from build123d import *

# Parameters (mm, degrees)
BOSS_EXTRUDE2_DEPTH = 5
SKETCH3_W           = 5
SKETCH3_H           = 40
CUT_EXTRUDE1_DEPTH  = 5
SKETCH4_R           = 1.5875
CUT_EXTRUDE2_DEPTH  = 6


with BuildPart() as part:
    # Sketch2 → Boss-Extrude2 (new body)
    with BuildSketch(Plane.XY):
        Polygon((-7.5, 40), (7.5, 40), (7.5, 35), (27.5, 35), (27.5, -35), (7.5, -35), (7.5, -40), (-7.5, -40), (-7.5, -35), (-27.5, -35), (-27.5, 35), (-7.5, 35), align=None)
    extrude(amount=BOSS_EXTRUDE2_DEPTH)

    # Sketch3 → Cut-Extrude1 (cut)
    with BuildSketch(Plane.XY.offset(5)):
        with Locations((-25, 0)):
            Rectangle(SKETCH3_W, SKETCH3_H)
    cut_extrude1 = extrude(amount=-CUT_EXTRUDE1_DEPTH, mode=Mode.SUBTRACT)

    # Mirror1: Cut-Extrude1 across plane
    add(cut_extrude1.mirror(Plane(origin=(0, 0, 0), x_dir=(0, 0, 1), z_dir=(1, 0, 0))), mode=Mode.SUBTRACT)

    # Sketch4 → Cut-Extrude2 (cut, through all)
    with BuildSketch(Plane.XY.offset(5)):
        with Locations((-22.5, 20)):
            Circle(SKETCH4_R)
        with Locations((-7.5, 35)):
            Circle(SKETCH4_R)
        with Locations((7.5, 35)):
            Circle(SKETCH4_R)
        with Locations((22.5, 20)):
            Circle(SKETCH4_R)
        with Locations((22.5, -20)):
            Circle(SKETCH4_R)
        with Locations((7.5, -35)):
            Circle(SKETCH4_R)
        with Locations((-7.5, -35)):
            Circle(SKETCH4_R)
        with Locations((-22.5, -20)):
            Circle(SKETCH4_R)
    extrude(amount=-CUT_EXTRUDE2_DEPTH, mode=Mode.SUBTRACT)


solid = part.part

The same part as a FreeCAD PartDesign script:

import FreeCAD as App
import Part
import Sketcher
from FreeCAD import Vector
Q = App.Units.Quantity


def add_polygon(sketch, points):
    """Adds a closed chain of lines whose ends are joined by coincident constraints."""
    first, n = sketch.GeometryCount, len(points)
    for a, b in zip(points, points[1:] + points[:1]):
        sketch.addGeometry(Part.LineSegment(App.Vector(*a, 0), App.Vector(*b, 0)), False)
    for i in range(n):
        sketch.addConstraint(Sketcher.Constraint("Coincident", first + i, 2, first + (i + 1) % n, 1))

doc = App.newDocument("Part")
body = doc.addObject("PartDesign::Body", "Body")

# Sketch on XY plane
sketch1 = doc.addObject("Sketcher::SketchObject", "Sketch")
body.addObject(sketch1)
sketch1.AttachmentSupport = (doc.XY_Plane, [""])
sketch1.MapMode = "FlatFace"
add_polygon(sketch1, [(7.5, 40), (-7.5, 40), (-7.5, 35), (-27.5, 35), (-27.5, -35), (-7.5, -35), (-7.5, -40), (7.5, -40), (7.5, -35), (27.5, -35), (27.5, 35), (7.5, 35)])  # lines 0-11
sketch1.addConstraint(Sketcher.Constraint("Horizontal", 0))
sketch1.addConstraint(Sketcher.Constraint("Vertical", 1))
sketch1.addConstraint(Sketcher.Constraint("Horizontal", 2))
sketch1.addConstraint(Sketcher.Constraint("Vertical", 3))
sketch1.addConstraint(Sketcher.Constraint("Horizontal", 4))
sketch1.addConstraint(Sketcher.Constraint("Vertical", 5))
sketch1.addConstraint(Sketcher.Constraint("Horizontal", 6))
sketch1.addConstraint(Sketcher.Constraint("Vertical", 7))
sketch1.addConstraint(Sketcher.Constraint("Horizontal", 8))
sketch1.addConstraint(Sketcher.Constraint("Vertical", 9))
sketch1.addConstraint(Sketcher.Constraint("Horizontal", 10))
sketch1.addConstraint(Sketcher.Constraint("Vertical", 11))
sketch1.addConstraint(Sketcher.Constraint("Symmetric", 0, 2, 6, 2, -1, 1))
sketch1.addConstraint(Sketcher.Constraint("Symmetric", 2, 2, 8, 2, -1, 1))
sketch1.addConstraint(Sketcher.Constraint("Symmetric", 4, 2, 10, 2, -1, 1))
sketch1.addConstraint(Sketcher.Constraint("Symmetric", 4, 2, 7, 2, -2))
sketch1.addConstraint(Sketcher.Constraint("DistanceX", 0, 2, 0, 1, Q("15 mm")))
sketch1.addConstraint(Sketcher.Constraint("DistanceX", 2, 2, 2, 1, Q("20 mm")))
sketch1.addConstraint(Sketcher.Constraint("DistanceY", 1, 2, 1, 1, Q("5 mm")))
sketch1.addConstraint(Sketcher.Constraint("DistanceY", 3, 2, 3, 1, Q("70 mm")))
pad1 = doc.addObject("PartDesign::Pad", "Pad")
body.addObject(pad1)
pad1.Profile = sketch1
pad1.Length = 5

# Sketch on XY plane
sketch2 = doc.addObject("Sketcher::SketchObject", "Sketch001")
body.addObject(sketch2)
sketch2.AttachmentSupport = (doc.XY_Plane, [""])
sketch2.MapMode = "FlatFace"
sketch2.AttachmentOffset = App.Placement(Vector(0, 0, 5), App.Rotation())
add_polygon(sketch2, [(-27.5, 20), (-27.5, -20), (-22.5, -20), (-22.5, 20)])  # lines 0-3
sketch2.addConstraint(Sketcher.Constraint("Vertical", 0))
sketch2.addConstraint(Sketcher.Constraint("Horizontal", 1))
sketch2.addConstraint(Sketcher.Constraint("Vertical", 2))
sketch2.addConstraint(Sketcher.Constraint("Horizontal", 3))
sketch2.addConstraint(Sketcher.Constraint("DistanceX", 1, 1, 1, 2, Q("5 mm")))
sketch2.addConstraint(Sketcher.Constraint("DistanceY", 0, 2, 0, 1, Q("40 mm")))
sketch2.addConstraint(Sketcher.Constraint("DistanceY", 0, 2, -1, 1, Q("20 mm")))
sketch2.addConstraint(Sketcher.Constraint("DistanceX", 0, 2, -1, 1, Q("27.5 mm")))
pocket1 = doc.addObject("PartDesign::Pocket", "Pocket")
body.addObject(pocket1)
pocket1.Profile = sketch2
pocket1.Length = 5
doc.recompute()

mirrored = doc.addObject("PartDesign::Mirrored", "Mirrored")
body.addObject(mirrored)
mirrored.Originals = [pocket1]
mirrored.MirrorPlane = (doc.YZ_Plane, [""])
body.Tip = mirrored

# Sketch on XY plane
sketch3 = doc.addObject("Sketcher::SketchObject", "Sketch002")
body.addObject(sketch3)
sketch3.AttachmentSupport = (doc.XY_Plane, [""])
sketch3.MapMode = "FlatFace"
sketch3.AttachmentOffset = App.Placement(Vector(0, 0, 5), App.Rotation())
sketch3.addGeometry(Part.Circle(Vector(-22.5, 20, 0), Vector(0, 0, 1), 1.5875), False)
sketch3.addGeometry(Part.Circle(Vector(-7.5, 35, 0), Vector(0, 0, 1), 1.5875), False)
sketch3.addGeometry(Part.Circle(Vector(7.5, 35, 0), Vector(0, 0, 1), 1.5875), False)
sketch3.addGeometry(Part.Circle(Vector(22.5, 20, 0), Vector(0, 0, 1), 1.5875), False)
sketch3.addGeometry(Part.Circle(Vector(22.5, -20, 0), Vector(0, 0, 1), 1.5875), False)
sketch3.addGeometry(Part.Circle(Vector(7.5, -35, 0), Vector(0, 0, 1), 1.5875), False)
sketch3.addGeometry(Part.Circle(Vector(-7.5, -35, 0), Vector(0, 0, 1), 1.5875), False)
sketch3.addGeometry(Part.Circle(Vector(-22.5, -20, 0), Vector(0, 0, 1), 1.5875), False)
sketch3.addConstraint(Sketcher.Constraint("Equal", 0, 1))
sketch3.addConstraint(Sketcher.Constraint("Equal", 1, 2))
sketch3.addConstraint(Sketcher.Constraint("Equal", 2, 3))
sketch3.addConstraint(Sketcher.Constraint("Equal", 3, 4))
sketch3.addConstraint(Sketcher.Constraint("Equal", 4, 5))
sketch3.addConstraint(Sketcher.Constraint("Equal", 5, 6))
sketch3.addConstraint(Sketcher.Constraint("Equal", 6, 7))
sketch3.addConstraint(Sketcher.Constraint("Symmetric", 0, 3, 4, 3, -1, 1))
sketch3.addConstraint(Sketcher.Constraint("Symmetric", 1, 3, 5, 3, -1, 1))
sketch3.addConstraint(Sketcher.Constraint("Symmetric", 2, 3, 6, 3, -1, 1))
sketch3.addConstraint(Sketcher.Constraint("Symmetric", 3, 3, 7, 3, -1, 1))
sketch3.addConstraint(Sketcher.Constraint("Symmetric", 1, 3, 2, 3, -2))
sketch3.addConstraint(Sketcher.Constraint("Symmetric", 0, 3, 3, 3, -2))
sketch3.addConstraint(Sketcher.Constraint("Diameter", 0, Q("3.175 mm")))
sketch3.addConstraint(Sketcher.Constraint("DistanceY", -1, 1, 0, 3, Q("20 mm")))
sketch3.addConstraint(Sketcher.Constraint("DistanceY", -1, 1, 1, 3, Q("35 mm")))
sketch3.addConstraint(Sketcher.Constraint("DistanceX", 0, 3, 1, 3, Q("15 mm")))
sketch3.addConstraint(Sketcher.Constraint("DistanceX", 1, 3, 2, 3, Q("15 mm")))
pocket2 = doc.addObject("PartDesign::Pocket", "Pocket001")
body.addObject(pocket2)
pocket2.Profile = sketch3
pocket2.Type = "ThroughAll"

doc.recompute()
